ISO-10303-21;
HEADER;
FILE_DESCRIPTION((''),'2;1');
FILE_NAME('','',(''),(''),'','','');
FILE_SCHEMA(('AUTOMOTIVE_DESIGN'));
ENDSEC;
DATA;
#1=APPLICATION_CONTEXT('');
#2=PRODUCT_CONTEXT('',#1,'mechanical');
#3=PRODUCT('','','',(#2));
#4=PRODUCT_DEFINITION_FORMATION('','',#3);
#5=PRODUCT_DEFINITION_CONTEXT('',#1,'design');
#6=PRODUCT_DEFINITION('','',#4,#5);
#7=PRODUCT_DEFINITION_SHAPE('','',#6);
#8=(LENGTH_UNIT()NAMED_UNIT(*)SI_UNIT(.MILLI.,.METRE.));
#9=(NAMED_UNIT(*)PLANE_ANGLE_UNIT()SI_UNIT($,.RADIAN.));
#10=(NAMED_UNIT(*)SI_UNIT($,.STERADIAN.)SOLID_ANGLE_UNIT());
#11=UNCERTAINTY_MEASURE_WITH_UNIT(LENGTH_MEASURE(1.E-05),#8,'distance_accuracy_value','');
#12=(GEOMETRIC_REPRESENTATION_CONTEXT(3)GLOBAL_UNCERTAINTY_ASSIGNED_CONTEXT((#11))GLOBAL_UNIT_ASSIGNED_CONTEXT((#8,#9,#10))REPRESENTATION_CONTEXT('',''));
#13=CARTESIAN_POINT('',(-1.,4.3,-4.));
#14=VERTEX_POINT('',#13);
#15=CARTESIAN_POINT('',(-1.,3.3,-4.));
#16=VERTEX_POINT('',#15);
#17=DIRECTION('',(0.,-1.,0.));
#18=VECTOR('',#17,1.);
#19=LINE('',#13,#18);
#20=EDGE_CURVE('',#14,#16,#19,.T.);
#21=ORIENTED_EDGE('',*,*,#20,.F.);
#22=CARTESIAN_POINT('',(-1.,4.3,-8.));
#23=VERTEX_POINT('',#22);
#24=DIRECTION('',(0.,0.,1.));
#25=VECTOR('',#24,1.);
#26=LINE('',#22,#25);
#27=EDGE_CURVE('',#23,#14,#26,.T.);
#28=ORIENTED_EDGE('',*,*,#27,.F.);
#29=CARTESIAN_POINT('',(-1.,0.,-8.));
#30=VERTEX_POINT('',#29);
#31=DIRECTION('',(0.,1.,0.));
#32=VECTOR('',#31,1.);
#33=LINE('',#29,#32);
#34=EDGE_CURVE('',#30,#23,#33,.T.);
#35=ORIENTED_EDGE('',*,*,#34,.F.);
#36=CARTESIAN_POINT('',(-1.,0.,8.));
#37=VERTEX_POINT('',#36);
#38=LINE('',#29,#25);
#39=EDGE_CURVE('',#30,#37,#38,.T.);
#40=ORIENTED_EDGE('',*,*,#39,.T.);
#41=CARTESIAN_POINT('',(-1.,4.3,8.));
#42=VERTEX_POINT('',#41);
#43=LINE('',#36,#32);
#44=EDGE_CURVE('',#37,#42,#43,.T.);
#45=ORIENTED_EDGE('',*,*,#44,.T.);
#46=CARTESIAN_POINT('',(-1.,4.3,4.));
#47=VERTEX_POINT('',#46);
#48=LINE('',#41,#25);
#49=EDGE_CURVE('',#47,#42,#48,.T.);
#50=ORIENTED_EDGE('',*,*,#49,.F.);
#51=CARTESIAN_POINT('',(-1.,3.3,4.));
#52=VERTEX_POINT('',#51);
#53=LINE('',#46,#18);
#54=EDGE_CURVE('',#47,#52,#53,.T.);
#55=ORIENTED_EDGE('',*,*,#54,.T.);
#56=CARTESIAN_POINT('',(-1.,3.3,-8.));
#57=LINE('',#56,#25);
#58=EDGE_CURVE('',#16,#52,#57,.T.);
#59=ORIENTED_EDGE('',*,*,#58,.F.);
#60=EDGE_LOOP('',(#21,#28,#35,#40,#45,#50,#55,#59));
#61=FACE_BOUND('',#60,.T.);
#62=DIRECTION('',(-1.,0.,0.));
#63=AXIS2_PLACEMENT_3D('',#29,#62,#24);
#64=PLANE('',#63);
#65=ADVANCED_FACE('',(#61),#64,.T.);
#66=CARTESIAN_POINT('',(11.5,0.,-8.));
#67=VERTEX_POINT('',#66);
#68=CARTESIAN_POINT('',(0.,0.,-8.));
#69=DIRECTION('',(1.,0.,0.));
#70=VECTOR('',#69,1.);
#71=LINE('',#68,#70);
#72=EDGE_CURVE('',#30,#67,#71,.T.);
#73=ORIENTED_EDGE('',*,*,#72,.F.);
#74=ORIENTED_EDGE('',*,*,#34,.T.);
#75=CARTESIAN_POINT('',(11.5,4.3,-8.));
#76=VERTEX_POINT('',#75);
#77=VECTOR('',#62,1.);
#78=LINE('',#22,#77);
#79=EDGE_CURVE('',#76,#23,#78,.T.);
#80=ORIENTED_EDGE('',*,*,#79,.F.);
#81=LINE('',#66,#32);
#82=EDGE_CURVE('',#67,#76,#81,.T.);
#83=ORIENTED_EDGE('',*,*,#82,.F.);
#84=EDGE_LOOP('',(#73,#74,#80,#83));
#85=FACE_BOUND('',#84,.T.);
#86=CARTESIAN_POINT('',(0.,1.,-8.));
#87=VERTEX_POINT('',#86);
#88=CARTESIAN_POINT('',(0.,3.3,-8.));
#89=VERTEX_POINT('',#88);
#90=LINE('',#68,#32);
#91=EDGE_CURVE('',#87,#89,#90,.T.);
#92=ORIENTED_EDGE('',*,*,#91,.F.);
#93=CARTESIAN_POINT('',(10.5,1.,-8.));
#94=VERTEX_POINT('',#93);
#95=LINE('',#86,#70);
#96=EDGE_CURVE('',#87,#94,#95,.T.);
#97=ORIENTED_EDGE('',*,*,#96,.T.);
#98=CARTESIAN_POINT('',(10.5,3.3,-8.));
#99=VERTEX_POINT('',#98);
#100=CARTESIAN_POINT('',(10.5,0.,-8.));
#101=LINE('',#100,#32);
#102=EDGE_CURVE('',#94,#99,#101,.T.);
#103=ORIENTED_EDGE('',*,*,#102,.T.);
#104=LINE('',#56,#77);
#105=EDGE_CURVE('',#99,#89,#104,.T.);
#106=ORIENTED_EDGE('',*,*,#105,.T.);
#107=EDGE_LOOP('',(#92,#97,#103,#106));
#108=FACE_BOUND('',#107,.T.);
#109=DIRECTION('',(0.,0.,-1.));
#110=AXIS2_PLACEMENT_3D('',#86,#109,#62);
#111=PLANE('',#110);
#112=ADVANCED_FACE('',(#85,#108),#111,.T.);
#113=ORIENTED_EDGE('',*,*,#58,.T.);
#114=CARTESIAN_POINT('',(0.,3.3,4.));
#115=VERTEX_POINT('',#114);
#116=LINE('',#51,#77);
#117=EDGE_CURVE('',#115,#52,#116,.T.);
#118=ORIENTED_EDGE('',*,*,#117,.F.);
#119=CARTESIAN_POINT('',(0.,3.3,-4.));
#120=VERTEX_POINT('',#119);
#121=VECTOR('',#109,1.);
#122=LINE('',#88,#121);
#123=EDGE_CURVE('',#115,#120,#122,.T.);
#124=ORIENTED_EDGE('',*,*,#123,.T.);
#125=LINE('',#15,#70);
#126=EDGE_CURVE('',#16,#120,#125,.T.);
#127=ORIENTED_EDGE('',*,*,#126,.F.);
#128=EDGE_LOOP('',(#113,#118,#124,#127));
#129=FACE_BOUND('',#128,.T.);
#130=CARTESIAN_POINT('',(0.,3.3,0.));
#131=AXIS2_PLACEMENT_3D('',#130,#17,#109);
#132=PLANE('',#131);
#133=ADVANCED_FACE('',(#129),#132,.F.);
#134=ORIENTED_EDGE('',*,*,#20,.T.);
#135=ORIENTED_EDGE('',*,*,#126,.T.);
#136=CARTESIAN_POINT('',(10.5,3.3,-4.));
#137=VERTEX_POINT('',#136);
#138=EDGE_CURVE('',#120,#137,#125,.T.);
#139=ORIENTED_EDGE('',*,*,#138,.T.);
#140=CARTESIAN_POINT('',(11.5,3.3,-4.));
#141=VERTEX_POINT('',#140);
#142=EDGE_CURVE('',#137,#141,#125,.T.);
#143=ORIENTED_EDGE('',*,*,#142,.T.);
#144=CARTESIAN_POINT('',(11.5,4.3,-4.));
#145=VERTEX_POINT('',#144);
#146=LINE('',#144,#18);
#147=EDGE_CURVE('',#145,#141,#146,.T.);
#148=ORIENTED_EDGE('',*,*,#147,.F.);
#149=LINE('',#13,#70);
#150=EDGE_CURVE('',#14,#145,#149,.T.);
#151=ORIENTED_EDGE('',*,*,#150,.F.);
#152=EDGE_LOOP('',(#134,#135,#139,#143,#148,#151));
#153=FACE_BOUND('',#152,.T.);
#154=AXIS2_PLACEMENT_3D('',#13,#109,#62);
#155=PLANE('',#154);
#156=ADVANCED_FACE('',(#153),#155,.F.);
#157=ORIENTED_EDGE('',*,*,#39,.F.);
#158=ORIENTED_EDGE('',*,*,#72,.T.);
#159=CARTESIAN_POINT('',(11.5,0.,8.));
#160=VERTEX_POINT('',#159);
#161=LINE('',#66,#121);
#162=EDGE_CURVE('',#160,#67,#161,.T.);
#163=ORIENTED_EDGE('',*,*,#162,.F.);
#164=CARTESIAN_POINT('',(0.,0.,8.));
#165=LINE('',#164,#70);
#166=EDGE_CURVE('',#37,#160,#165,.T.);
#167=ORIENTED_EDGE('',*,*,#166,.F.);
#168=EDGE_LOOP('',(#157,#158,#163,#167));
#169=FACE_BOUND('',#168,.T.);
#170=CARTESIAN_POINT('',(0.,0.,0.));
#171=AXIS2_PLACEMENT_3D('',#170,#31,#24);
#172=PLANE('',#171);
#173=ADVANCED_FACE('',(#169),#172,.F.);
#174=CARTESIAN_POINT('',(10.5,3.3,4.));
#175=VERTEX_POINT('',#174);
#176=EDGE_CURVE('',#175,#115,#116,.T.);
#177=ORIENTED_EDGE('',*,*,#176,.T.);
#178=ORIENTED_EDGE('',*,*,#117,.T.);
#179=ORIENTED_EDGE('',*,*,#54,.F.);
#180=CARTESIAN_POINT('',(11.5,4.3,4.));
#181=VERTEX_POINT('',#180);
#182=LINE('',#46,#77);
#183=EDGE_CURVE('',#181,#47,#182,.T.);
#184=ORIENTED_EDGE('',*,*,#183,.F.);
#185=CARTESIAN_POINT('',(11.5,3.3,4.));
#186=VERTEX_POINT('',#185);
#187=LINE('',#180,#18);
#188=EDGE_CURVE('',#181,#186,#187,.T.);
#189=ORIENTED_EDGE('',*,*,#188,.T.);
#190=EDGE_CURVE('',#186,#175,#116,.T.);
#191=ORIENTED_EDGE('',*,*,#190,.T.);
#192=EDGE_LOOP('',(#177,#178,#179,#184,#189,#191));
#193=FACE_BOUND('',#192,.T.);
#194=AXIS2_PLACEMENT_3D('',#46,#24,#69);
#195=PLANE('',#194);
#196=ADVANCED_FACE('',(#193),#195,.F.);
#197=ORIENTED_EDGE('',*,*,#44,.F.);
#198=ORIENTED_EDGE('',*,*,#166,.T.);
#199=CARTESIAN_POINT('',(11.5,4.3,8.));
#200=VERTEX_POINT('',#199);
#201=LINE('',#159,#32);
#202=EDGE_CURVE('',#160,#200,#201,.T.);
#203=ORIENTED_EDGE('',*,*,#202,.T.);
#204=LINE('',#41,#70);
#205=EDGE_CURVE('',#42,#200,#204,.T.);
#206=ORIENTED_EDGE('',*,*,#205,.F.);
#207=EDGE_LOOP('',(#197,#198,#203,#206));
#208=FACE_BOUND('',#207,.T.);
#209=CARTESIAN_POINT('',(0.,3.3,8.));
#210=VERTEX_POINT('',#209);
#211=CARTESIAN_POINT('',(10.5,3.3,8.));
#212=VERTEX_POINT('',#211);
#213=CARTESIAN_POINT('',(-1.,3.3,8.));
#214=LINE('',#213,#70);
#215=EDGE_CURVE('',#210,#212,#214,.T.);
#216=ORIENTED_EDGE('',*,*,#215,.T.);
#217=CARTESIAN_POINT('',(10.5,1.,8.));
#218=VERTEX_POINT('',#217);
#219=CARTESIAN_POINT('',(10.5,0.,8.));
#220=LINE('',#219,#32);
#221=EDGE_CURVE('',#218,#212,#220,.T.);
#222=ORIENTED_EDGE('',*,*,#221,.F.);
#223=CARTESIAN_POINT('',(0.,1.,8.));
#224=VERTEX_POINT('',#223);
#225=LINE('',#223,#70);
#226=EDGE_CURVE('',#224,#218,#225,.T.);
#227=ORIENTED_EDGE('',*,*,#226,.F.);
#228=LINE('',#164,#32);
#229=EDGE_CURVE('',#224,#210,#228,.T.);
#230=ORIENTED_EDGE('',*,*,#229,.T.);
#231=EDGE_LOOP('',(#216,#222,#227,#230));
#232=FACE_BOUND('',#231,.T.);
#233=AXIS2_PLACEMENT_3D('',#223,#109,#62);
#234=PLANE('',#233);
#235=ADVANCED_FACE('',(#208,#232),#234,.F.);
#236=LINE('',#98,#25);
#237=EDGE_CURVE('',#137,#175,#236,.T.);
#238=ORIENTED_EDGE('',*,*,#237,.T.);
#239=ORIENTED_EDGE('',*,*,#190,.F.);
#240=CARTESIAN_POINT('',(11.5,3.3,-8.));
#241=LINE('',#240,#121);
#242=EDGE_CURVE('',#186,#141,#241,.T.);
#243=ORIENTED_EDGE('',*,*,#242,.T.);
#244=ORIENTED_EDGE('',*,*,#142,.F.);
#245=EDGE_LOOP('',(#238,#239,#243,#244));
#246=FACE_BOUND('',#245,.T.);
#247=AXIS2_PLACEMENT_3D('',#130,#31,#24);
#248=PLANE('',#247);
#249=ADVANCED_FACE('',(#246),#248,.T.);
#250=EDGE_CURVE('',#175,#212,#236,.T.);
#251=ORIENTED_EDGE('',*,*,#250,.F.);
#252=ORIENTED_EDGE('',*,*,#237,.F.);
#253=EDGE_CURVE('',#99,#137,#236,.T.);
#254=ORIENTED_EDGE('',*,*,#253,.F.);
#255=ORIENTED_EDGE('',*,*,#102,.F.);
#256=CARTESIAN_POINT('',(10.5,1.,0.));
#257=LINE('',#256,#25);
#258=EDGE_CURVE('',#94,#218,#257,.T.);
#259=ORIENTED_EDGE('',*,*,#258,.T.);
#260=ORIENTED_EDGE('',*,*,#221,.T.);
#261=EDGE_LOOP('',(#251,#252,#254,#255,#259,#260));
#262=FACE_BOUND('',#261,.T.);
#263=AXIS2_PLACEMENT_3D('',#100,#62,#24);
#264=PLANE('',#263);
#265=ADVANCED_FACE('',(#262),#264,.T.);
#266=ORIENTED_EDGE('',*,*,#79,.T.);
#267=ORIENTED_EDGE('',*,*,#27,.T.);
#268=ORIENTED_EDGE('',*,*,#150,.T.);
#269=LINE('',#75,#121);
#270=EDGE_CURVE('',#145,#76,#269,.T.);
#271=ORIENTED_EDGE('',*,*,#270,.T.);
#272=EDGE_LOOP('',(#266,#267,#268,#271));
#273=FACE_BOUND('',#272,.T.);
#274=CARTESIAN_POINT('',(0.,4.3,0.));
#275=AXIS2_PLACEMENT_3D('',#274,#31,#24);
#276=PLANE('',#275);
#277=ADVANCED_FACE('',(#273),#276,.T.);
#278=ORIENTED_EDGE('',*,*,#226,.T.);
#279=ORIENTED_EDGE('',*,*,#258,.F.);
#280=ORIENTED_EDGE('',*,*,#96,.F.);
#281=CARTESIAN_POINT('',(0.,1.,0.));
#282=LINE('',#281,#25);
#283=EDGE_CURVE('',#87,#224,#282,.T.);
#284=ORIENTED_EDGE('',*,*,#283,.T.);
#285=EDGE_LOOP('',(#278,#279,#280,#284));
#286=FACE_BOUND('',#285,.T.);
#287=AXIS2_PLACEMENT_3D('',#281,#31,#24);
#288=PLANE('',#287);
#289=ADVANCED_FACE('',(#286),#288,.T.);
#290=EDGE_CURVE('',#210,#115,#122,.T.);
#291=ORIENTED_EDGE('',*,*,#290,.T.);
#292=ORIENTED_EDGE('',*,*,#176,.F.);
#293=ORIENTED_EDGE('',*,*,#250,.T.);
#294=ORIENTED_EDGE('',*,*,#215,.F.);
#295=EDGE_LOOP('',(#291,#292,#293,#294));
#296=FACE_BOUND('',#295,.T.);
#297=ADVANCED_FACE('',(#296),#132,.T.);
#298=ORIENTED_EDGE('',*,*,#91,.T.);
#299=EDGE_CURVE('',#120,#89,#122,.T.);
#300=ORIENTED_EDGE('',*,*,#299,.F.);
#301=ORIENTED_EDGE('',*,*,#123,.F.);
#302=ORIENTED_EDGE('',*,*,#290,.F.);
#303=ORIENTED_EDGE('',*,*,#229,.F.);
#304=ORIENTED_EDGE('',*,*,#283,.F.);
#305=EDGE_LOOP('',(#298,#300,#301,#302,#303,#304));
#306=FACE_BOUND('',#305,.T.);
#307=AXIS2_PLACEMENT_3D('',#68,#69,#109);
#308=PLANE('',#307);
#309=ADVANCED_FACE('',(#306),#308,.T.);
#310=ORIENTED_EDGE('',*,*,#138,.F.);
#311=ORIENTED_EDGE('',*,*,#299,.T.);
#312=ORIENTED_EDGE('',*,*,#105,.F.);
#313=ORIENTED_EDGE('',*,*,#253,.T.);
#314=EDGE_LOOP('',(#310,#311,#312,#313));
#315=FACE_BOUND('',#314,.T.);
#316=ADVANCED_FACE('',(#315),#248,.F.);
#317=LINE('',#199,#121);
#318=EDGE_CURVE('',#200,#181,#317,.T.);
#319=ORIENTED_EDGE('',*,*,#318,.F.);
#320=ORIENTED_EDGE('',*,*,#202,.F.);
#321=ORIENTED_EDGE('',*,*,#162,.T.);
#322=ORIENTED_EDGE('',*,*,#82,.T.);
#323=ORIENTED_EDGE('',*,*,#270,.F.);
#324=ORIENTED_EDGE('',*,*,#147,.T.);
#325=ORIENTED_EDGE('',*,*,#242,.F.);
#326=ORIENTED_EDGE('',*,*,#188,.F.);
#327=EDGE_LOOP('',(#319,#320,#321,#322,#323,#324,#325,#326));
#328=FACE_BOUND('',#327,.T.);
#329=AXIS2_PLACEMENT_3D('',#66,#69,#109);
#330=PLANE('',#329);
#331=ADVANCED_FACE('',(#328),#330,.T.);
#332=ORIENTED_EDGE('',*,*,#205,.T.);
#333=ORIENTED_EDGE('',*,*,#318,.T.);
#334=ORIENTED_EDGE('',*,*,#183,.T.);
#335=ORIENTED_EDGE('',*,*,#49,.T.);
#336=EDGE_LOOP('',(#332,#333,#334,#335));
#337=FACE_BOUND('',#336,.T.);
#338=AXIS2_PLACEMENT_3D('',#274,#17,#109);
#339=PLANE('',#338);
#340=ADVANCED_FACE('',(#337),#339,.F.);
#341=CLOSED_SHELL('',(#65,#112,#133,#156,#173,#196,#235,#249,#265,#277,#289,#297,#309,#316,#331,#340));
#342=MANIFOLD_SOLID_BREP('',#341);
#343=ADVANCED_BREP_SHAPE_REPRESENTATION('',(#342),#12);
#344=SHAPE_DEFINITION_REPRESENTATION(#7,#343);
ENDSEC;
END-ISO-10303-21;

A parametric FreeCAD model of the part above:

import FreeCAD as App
import Part
import Sketcher

V = App.Vector

doc = App.newDocument("Part")
body = doc.addObject("PartDesign::Body", "Body")

# Sketch on XZ plane
sketch1 = body.newObject("Sketcher::SketchObject", "Sketch")
sketch1.AttachmentSupport = (doc.getObject("XZ_Plane"), [""])
sketch1.MapMode = "FlatFace"
sketch1.addGeometry([
    Part.LineSegment(V(0, -8, 0), V(0, 8, 0)),
    Part.LineSegment(V(0, 8, 0), V(10.5, 8, 0)),
    Part.LineSegment(V(10.5, 8, 0), V(10.5, -8, 0)),
    Part.LineSegment(V(10.5, -8, 0), V(0, -8, 0)),
], False)
sketch1.addConstraint([
    Sketcher.Constraint("Coincident", 0, 2, 1, 1),
    Sketcher.Constraint("Coincident", 1, 2, 2, 1),
    Sketcher.Constraint("Coincident", 2, 2, 3, 1),
    Sketcher.Constraint("Coincident", 3, 2, 0, 1),
    Sketcher.Constraint("Vertical", 0),
    Sketcher.Constraint("Horizontal", 1),
    Sketcher.Constraint("Vertical", 2),
    Sketcher.Constraint("Horizontal", 3),
    Sketcher.Constraint("Symmetric", 0, 2, 3, 2, -1, 1),
    Sketcher.Constraint("DistanceY", 0, 1, 0, 2, 16.0),
    Sketcher.Constraint("DistanceX", 1, 1, 1, 2, 10.5),
])
pad1 = body.newObject("PartDesign::Pad", "Pad")
pad1.Profile = sketch1
pad1.Length = 1
pad1.Reversed = True

# Sketch on XZ plane
sketch2 = body.newObject("Sketcher::SketchObject", "Sketch001")
sketch2.AttachmentSupport = (doc.getObject("XZ_Plane"), [""])
sketch2.MapMode = "FlatFace"
sketch2.AttachmentOffset = App.Placement(V(0, 0, -1), App.Rotation())
sketch2.addGeometry([
    Part.LineSegment(V(10.5, -8, 0), V(10.5, 8, 0)),  # 0
    Part.LineSegment(V(10.5, 8, 0), V(11.5, 8, 0)),  # 1
    Part.LineSegment(V(11.5, 8, 0), V(11.5, -8, 0)),  # 2
    Part.LineSegment(V(11.5, -8, 0), V(10.5, -8, 0)),  # 3
    Part.LineSegment(V(-1, -8, 0), V(-1, 8, 0)),  # 4
    Part.LineSegment(V(-1, 8, 0), V(0, 8, 0)),  # 5
    Part.LineSegment(V(0, 8, 0), V(0, -8, 0)),  # 6
    Part.LineSegment(V(0, -8, 0), V(-1, -8, 0)),  # 7
], False)
sketch2.addConstraint([
    Sketcher.Constraint("Coincident", 0, 2, 1, 1),
    Sketcher.Constraint("Coincident", 1, 2, 2, 1),
    Sketcher.Constraint("Coincident", 2, 2, 3, 1),
    Sketcher.Constraint("Coincident", 3, 2, 0, 1),
    Sketcher.Constraint("Coincident", 4, 2, 5, 1),
    Sketcher.Constraint("Coincident", 5, 2, 6, 1),
    Sketcher.Constraint("Coincident", 6, 2, 7, 1),
    Sketcher.Constraint("Coincident", 7, 2, 4, 1),
    Sketcher.Constraint("Vertical", 0),
    Sketcher.Constraint("Horizontal", 1),
    Sketcher.Constraint("Vertical", 2),
    Sketcher.Constraint("Horizontal", 3),
    Sketcher.Constraint("Vertical", 4),
    Sketcher.Constraint("Horizontal", 5),
    Sketcher.Constraint("Vertical", 6),
    Sketcher.Constraint("Horizontal", 7),
    Sketcher.Constraint("Symmetric", 5, 2, 6, 2, -1, 1),
    Sketcher.Constraint("Horizontal", 1, 2, 4, 2),
    Sketcher.Constraint("Horizontal", 3, 2, 6, 2),
    Sketcher.Constraint("Equal", 3, 5),
    Sketcher.Constraint("DistanceX", 1, 1, 1, 2, 1.0),
    Sketcher.Constraint("DistanceY", 0, 1, 0, 2, 16.0),
    Sketcher.Constraint("DistanceX", -1, 1, 0, 2, 10.5),
])
pad2 = body.newObject("PartDesign::Pad", "Pad001")
pad2.Profile = sketch2
pad2.Type = "TwoLengths"
pad2.Length = 2.3
pad2.Length2 = 1
pad2.Reversed = True

# Sketch on XZ plane
sketch3 = body.newObject("Sketcher::SketchObject", "Sketch002")
sketch3.AttachmentSupport = (doc.getObject("XZ_Plane"), [""])
sketch3.MapMode = "FlatFace"
sketch3.AttachmentOffset = App.Placement(V(0, 0, -3.3), App.Rotation())
sketch3.addGeometry([
    Part.LineSegment(V(-1, -8, 0), V(-1, -4, 0)),  # 0
    Part.LineSegment(V(-1, -4, 0), V(11.5, -4, 0)),  # 1
    Part.LineSegment(V(11.5, -4, 0), V(11.5, -8, 0)),  # 2
    Part.LineSegment(V(11.5, -8, 0), V(-1, -8, 0)),  # 3
    Part.LineSegment(V(-1, 4, 0), V(-1, 8, 0)),  # 4
    Part.LineSegment(V(-1, 8, 0), V(11.5, 8, 0)),  # 5
    Part.LineSegment(V(11.5, 8, 0), V(11.5, 4, 0)),  # 6
    Part.LineSegment(V(11.5, 4, 0), V(-1, 4, 0)),  # 7
], False)
sketch3.addConstraint([
    Sketcher.Constraint("Coincident", 0, 2, 1, 1),
    Sketcher.Constraint("Coincident", 1, 2, 2, 1),
    Sketcher.Constraint("Coincident", 2, 2, 3, 1),
    Sketcher.Constraint("Coincident", 3, 2, 0, 1),
    Sketcher.Constraint("Coincident", 4, 2, 5, 1),
    Sketcher.Constraint("Coincident", 5, 2, 6, 1),
    Sketcher.Constraint("Coincident", 6, 2, 7, 1),
    Sketcher.Constraint("Coincident", 7, 2, 4, 1),
    Sketcher.Constraint("Vertical", 0),
    Sketcher.Constraint("Horizontal", 1),
    Sketcher.Constraint("Vertical", 2),
    Sketcher.Constraint("Horizontal", 3),
    Sketcher.Constraint("Vertical", 4),
    Sketcher.Constraint("Horizontal", 5),
    Sketcher.Constraint("Vertical", 6),
    Sketcher.Constraint("Horizontal", 7),
    Sketcher.Constraint("Symmetric", 3, 2, 4, 2, -1),
    Sketcher.Constraint("Symmetric", 1, 2, 6, 2, -1),
    Sketcher.Constraint("DistanceY", 0, 1, 0, 2, 4.0),
    Sketcher.Constraint("DistanceX", 1, 1, 1, 2, 12.5),
    Sketcher.Constraint("DistanceX", 0, 2, -1, 1, 1.0),
    Sketcher.Constraint("DistanceY", 0, 2, -1, 1, 4.0),
])
pad3 = body.newObject("PartDesign::Pad", "Pad002")
pad3.Profile = sketch3
pad3.Length = 1
pad3.Reversed = True

doc.recompute()
